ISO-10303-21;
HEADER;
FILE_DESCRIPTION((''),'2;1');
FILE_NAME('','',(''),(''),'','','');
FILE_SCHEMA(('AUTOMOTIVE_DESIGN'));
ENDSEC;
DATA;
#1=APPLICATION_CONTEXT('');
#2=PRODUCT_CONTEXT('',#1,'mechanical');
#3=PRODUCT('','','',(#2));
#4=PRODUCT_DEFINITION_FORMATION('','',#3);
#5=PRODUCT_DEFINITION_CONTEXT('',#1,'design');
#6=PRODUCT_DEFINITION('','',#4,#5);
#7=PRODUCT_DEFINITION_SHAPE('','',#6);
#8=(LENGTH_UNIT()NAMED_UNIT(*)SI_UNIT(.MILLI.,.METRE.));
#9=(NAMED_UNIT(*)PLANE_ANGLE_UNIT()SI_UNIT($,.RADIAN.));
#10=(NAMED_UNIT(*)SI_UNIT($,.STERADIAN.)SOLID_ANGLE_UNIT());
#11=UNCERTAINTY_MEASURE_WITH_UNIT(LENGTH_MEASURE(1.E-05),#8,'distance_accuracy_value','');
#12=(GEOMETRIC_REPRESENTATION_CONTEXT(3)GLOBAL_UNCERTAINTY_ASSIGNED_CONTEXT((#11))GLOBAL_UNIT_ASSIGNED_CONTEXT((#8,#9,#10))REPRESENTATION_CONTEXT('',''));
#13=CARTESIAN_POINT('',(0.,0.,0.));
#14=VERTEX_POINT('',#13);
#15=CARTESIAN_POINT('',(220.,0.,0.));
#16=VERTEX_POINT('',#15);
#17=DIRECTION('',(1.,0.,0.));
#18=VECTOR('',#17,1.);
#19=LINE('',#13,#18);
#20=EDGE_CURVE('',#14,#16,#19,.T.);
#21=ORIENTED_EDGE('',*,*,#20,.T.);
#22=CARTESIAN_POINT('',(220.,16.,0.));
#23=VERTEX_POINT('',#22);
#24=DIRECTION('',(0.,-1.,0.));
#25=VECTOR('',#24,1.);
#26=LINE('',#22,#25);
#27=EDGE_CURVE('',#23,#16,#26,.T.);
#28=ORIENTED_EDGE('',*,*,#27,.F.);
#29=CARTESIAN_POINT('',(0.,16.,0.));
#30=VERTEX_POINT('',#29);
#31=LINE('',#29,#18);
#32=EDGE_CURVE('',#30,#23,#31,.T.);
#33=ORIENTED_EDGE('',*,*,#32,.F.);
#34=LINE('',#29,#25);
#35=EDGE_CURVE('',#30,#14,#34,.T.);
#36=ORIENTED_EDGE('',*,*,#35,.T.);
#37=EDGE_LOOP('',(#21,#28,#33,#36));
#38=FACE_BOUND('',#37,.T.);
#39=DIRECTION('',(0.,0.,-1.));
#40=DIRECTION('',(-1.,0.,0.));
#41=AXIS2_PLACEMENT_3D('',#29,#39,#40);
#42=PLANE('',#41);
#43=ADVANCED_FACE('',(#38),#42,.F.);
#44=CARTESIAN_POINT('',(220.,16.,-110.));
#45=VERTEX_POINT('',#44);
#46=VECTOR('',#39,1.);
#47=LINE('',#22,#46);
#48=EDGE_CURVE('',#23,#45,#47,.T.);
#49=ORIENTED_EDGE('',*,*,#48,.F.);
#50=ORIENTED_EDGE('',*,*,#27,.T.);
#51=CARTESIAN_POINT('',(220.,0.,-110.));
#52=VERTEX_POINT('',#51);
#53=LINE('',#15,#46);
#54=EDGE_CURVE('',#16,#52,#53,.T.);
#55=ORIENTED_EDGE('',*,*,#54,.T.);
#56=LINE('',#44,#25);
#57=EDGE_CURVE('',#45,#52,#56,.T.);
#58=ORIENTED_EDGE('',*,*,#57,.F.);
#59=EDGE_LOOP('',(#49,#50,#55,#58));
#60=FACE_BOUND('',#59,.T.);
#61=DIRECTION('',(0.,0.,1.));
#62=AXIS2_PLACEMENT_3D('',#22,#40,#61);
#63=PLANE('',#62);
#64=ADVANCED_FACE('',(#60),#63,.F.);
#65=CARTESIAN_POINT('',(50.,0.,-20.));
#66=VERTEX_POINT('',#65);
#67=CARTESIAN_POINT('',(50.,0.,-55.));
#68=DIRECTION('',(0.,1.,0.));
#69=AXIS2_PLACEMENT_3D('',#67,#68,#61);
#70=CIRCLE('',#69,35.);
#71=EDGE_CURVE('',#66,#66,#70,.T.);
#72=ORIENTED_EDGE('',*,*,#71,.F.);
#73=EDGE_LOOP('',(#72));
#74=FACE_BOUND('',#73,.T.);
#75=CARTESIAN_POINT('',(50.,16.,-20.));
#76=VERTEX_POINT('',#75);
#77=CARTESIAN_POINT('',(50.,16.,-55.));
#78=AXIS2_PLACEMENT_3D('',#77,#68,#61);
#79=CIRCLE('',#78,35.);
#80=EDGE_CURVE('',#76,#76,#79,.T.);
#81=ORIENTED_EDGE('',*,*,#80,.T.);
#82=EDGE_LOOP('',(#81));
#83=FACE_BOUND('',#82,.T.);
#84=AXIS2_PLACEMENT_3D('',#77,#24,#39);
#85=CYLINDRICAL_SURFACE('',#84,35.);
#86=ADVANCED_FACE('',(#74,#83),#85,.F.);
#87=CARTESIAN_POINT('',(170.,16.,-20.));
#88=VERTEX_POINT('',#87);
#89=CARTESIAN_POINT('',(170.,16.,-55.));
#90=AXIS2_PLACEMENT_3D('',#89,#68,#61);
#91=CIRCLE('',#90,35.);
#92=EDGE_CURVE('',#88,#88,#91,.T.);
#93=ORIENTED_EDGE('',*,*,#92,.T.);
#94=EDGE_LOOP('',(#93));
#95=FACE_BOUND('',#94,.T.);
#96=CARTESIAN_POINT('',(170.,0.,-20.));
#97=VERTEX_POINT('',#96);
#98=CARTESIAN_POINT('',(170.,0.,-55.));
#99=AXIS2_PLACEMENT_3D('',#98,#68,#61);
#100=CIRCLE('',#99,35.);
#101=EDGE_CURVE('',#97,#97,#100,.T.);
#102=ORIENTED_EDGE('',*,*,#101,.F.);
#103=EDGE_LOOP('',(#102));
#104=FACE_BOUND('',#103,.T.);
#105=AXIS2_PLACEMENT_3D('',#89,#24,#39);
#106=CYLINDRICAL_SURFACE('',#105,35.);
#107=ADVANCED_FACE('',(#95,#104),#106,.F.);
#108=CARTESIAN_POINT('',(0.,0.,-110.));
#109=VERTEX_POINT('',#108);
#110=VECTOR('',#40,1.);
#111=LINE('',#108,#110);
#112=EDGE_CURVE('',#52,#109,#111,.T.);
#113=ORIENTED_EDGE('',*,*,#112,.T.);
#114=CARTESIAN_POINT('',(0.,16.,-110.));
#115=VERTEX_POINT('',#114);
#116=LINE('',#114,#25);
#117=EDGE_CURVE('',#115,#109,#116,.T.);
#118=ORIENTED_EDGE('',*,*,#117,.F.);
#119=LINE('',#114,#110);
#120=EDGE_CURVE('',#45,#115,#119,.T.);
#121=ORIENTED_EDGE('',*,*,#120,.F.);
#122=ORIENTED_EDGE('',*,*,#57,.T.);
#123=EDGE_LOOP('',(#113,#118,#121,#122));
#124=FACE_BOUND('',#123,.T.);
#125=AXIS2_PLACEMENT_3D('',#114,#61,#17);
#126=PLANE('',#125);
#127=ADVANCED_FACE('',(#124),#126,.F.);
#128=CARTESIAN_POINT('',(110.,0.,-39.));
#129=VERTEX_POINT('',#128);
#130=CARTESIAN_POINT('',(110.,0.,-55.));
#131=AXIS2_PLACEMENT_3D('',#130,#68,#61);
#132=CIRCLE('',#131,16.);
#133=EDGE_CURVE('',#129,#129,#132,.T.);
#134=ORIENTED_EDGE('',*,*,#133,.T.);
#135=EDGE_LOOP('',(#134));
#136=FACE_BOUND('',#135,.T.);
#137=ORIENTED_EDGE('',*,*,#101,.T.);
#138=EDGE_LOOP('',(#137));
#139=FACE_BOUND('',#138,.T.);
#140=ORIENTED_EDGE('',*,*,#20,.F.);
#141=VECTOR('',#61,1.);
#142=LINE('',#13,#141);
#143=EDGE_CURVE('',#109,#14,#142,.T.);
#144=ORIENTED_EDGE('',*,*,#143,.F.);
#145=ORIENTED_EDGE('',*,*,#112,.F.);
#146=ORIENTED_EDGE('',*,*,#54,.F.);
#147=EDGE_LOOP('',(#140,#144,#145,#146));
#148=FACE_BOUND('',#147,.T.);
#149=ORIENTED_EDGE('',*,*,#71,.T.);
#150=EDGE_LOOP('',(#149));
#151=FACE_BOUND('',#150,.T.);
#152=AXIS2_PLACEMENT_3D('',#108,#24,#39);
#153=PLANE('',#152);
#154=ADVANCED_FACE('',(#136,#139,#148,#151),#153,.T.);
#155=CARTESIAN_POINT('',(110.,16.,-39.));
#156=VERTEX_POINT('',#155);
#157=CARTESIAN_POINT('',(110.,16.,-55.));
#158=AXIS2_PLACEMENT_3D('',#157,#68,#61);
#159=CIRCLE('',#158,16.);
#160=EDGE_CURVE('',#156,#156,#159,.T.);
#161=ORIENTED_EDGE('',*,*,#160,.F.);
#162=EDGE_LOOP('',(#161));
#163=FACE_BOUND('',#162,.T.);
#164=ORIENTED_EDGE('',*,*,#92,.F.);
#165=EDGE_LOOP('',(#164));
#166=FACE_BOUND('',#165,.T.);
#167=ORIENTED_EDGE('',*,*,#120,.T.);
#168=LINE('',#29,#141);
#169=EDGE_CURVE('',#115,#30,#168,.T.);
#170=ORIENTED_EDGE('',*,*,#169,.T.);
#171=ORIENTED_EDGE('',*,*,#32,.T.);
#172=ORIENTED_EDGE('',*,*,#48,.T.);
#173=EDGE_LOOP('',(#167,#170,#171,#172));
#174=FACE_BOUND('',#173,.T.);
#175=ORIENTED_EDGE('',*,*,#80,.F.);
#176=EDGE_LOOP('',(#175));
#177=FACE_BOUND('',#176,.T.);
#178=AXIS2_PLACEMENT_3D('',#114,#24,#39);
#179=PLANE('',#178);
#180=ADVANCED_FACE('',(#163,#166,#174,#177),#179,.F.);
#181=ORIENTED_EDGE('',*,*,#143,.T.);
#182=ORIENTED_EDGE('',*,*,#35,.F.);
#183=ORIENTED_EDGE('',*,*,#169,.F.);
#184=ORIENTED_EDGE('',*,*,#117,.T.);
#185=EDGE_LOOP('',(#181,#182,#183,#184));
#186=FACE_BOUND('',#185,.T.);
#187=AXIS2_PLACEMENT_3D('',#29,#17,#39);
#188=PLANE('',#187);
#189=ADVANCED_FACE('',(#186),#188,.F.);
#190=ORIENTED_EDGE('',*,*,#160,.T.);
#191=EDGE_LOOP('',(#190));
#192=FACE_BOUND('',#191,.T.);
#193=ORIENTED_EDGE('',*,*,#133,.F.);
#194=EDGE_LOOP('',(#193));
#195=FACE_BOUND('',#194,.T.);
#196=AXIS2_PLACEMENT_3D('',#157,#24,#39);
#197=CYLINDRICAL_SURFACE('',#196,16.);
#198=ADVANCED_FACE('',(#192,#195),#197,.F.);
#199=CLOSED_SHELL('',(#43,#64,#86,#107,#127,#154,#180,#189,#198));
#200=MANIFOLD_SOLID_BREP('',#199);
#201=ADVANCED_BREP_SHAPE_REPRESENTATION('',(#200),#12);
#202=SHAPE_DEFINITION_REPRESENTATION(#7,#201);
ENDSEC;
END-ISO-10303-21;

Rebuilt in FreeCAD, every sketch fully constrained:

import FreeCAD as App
import Part
import Sketcher
from FreeCAD import Vector


def add_polygon(sketch, points):
    """Adds a closed chain of lines whose ends are joined by coincident constraints."""
    first, n = sketch.GeometryCount, len(points)
    for a, b in zip(points, points[1:] + points[:1]):
        sketch.addGeometry(Part.LineSegment(App.Vector(*a, 0), App.Vector(*b, 0)), False)
    for i in range(n):
        sketch.addConstraint(Sketcher.Constraint("Coincident", first + i, 2, first + (i + 1) % n, 1))

doc = App.newDocument("Part")
body = doc.addObject("PartDesign::Body", "Body")

# Sketch on XZ plane
sketch1 = doc.addObject("Sketcher::SketchObject", "Sketch")
body.addObject(sketch1)
sketch1.AttachmentSupport = (doc.XZ_Plane, [""])
sketch1.MapMode = "FlatFace"
add_polygon(sketch1, [(0, -110), (0, 0), (220, 0), (220, -110)])  # lines 0-3
sketch1.addGeometry(Part.Circle(Vector(50, -55, 0), Vector(0, 0, 1), 35), False)  # 4
sketch1.addGeometry(Part.Circle(Vector(110, -55, 0), Vector(0, 0, 1), 16), False)  # 5
sketch1.addGeometry(Part.Circle(Vector(170, -55, 0), Vector(0, 0, 1), 35), False)  # 6
sketch1.addConstraint(Sketcher.Constraint("Vertical", 0))
sketch1.addConstraint(Sketcher.Constraint("Horizontal", 1))
sketch1.addConstraint(Sketcher.Constraint("Vertical", 2))
sketch1.addConstraint(Sketcher.Constraint("Horizontal", 3))
sketch1.addConstraint(Sketcher.Constraint("Coincident", 0, 2, -1, 1))
sketch1.addConstraint(Sketcher.Constraint("Equal", 4, 6))
sketch1.addConstraint(Sketcher.Constraint("Horizontal", 4, 3, 5, 3))
sketch1.addConstraint(Sketcher.Constraint("Horizontal", 5, 3, 6, 3))
sketch1.addConstraint(Sketcher.Constraint("Diameter", 4, 70.0))
sketch1.addConstraint(Sketcher.Constraint("Diameter", 5, 32.0))
sketch1.addConstraint(Sketcher.Constraint("DistanceX", 1, 1, 1, 2, 220.0))
sketch1.addConstraint(Sketcher.Constraint("DistanceY", 0, 1, 0, 2, 110.0))
sketch1.addConstraint(Sketcher.Constraint("DistanceX", -1, 1, 4, 3, 50.0))
sketch1.addConstraint(Sketcher.Constraint("DistanceY", 4, 3, -1, 1, 55.0))
sketch1.addConstraint(Sketcher.Constraint("DistanceX", -1, 1, 5, 3, 110.0))
sketch1.addConstraint(Sketcher.Constraint("DistanceX", -1, 1, 6, 3, 170.0))
pad1 = doc.addObject("PartDesign::Pad", "Pad")
body.addObject(pad1)
pad1.Profile = sketch1
pad1.Length = 16
pad1.Reversed = True

doc.recompute()
